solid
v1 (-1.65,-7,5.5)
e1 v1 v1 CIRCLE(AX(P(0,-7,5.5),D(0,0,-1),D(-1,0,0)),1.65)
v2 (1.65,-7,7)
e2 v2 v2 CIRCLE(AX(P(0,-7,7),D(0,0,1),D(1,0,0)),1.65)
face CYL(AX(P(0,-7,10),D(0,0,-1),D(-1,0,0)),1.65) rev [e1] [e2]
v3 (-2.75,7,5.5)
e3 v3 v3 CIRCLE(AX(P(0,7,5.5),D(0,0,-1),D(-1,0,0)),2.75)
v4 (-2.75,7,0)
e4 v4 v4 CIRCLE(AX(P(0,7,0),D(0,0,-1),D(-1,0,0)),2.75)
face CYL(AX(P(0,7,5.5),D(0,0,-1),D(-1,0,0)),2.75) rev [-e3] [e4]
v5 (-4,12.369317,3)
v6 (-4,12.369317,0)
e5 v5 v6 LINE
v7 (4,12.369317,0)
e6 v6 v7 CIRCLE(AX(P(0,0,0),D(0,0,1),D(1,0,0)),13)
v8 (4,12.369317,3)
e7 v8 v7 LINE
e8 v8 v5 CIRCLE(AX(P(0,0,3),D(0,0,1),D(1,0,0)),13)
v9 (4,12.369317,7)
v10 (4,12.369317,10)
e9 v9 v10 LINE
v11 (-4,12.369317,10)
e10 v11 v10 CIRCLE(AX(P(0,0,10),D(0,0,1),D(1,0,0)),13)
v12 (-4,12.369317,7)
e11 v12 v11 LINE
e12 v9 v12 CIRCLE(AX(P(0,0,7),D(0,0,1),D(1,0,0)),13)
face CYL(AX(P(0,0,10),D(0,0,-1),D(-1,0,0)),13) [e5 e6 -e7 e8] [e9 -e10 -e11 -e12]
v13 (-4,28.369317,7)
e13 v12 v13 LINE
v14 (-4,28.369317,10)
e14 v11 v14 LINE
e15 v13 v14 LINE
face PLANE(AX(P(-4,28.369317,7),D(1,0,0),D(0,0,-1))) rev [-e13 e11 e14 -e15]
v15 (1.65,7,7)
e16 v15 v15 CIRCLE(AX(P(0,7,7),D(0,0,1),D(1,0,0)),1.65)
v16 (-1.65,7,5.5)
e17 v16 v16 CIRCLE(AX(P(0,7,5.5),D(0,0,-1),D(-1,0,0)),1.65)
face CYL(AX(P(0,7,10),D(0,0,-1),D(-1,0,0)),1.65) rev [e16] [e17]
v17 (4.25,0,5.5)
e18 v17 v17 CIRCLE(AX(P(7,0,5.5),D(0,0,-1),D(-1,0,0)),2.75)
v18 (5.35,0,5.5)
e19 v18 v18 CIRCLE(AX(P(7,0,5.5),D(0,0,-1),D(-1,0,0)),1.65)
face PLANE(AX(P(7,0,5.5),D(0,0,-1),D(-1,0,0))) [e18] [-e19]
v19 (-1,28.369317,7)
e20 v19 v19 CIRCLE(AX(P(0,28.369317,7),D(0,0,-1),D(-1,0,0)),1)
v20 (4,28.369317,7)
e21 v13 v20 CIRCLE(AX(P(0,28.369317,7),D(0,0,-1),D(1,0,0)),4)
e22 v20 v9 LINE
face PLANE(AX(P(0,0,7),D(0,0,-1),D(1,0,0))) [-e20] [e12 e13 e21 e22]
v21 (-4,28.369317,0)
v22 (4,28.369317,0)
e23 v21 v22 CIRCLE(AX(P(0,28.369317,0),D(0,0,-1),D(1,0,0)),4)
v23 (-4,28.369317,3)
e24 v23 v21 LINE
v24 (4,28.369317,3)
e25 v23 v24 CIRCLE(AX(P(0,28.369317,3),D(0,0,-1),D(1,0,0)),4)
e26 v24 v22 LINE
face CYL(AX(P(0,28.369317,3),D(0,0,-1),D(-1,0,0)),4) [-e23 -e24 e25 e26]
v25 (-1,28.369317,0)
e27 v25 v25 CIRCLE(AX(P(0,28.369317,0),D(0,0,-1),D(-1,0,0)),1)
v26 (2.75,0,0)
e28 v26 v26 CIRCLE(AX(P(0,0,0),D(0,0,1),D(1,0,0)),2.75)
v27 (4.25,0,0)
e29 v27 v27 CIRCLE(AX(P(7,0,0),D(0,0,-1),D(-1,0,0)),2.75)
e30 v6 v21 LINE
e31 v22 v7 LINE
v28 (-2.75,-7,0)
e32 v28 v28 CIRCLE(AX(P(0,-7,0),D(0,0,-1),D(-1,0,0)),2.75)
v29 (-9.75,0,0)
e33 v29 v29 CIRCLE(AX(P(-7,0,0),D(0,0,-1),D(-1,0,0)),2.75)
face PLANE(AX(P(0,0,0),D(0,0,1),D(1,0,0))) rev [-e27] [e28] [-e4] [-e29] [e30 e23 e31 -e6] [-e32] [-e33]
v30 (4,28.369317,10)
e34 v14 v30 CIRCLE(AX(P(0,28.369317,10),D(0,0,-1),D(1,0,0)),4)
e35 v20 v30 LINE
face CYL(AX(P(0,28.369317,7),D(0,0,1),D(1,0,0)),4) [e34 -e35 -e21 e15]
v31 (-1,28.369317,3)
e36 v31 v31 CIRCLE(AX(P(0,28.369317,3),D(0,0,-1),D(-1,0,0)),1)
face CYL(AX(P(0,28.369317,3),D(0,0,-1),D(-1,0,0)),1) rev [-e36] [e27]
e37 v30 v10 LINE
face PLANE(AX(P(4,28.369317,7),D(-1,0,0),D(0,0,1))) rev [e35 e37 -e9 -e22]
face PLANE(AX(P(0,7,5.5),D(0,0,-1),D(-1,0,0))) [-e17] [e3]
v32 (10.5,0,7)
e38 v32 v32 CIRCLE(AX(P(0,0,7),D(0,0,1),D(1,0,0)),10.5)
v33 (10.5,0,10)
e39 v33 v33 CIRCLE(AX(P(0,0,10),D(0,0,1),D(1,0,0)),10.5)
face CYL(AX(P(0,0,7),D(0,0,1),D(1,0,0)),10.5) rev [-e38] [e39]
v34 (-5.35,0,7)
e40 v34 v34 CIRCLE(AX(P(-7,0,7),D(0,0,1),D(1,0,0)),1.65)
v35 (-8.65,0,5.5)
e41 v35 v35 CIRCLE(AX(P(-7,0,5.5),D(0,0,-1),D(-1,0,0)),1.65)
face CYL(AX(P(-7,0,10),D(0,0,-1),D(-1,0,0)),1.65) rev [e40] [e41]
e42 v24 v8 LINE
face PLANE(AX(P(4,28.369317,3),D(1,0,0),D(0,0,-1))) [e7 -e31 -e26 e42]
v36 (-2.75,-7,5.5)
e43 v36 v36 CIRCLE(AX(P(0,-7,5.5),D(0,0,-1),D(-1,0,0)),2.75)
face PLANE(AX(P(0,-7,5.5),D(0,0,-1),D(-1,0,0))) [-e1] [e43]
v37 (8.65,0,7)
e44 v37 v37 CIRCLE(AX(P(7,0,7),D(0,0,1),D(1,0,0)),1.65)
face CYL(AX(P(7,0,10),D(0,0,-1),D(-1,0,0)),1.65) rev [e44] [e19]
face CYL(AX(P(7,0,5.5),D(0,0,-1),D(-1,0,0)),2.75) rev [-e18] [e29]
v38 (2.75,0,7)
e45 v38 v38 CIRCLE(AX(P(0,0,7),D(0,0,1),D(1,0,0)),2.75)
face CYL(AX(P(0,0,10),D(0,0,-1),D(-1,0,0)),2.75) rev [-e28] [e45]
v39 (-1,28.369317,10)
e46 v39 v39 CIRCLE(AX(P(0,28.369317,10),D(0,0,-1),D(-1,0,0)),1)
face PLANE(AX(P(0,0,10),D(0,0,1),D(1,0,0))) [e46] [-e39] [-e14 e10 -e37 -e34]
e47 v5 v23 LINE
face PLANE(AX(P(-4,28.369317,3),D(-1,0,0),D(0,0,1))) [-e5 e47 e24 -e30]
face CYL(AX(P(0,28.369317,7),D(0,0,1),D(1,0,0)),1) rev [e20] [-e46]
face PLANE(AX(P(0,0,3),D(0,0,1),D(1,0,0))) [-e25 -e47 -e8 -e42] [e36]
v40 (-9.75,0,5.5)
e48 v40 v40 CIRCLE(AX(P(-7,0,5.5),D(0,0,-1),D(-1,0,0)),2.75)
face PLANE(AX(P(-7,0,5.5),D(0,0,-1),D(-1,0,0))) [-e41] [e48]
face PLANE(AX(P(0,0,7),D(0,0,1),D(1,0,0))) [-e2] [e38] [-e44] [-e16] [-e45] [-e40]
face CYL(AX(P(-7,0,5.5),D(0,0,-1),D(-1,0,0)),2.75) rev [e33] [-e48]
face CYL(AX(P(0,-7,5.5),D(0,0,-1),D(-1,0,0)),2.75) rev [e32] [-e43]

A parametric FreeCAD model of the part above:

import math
import FreeCAD as App
import Part
import Sketcher

V = App.Vector
Q = App.Units.Quantity

doc = App.newDocument("Part")
body = doc.addObject("PartDesign::Body", "Body")

sketch1 = doc.addObject("Sketcher::SketchObject", "Sketch")
body.addObject(sketch1)
sketch1.AttachmentSupport = (doc.XY_Plane, [""])
sketch1.MapMode = "FlatFace"
sketch1.addGeometry(Part.Circle(V(0, 0, 0), V(0, 0, 1), 13), False)
sketch1.addGeometry(Part.Circle(V(0, -7, 0), V(0, 0, 1), 1.65), False)
sketch1.addGeometry(Part.Circle(V(-7, 0, 0), V(0, 0, 1), 1.65), False)
sketch1.addGeometry(Part.Circle(V(0, 0, 0), V(0, 0, 1), 2.75), False)
sketch1.addGeometry(Part.Circle(V(7, 0, 0), V(0, 0, 1), 1.65), False)
sketch1.addGeometry(Part.Circle(V(0, 7, 0), V(0, 0, 1), 1.65), False)
sketch1.addConstraint(Sketcher.Constraint("Coincident", 0, 3, -1, 1))
sketch1.addConstraint(Sketcher.Constraint("Coincident", 3, 3, -1, 1))
sketch1.addConstraint(Sketcher.Constraint("Equal", 1, 2))
sketch1.addConstraint(Sketcher.Constraint("Equal", 2, 4))
sketch1.addConstraint(Sketcher.Constraint("Equal", 4, 5))
sketch1.addConstraint(Sketcher.Constraint("Symmetric", 2, 3, 4, 3, -1, 1))
sketch1.addConstraint(Sketcher.Constraint("Symmetric", 1, 3, 5, 3, -1, 1))
sketch1.addConstraint(Sketcher.Constraint("PointOnObject", 1, 3, -2))
sketch1.addConstraint(Sketcher.Constraint("PointOnObject", 2, 3, -1))
sketch1.addConstraint(Sketcher.Constraint("Diameter", 0, Q("26 mm")))
sketch1.addConstraint(Sketcher.Constraint("Diameter", 1, Q("3.3 mm")))
sketch1.addConstraint(Sketcher.Constraint("Diameter", 3, Q("5.5 mm")))
sketch1.addConstraint(Sketcher.Constraint("DistanceY", 1, 3, -1, 1, Q("7 mm")))
sketch1.addConstraint(Sketcher.Constraint("DistanceX", 2, 3, -1, 1, Q("7 mm")))
pad1 = doc.addObject("PartDesign::Pad", "Pad")
body.addObject(pad1)
pad1.Profile = sketch1
pad1.Length = 10

sketch2 = doc.addObject("Sketcher::SketchObject", "Sketch001")
body.addObject(sketch2)
sketch2.AttachmentSupport = (doc.XY_Plane, [""])
sketch2.MapMode = "FlatFace"
sketch2.AttachmentOffset = App.Placement(V(0, 0, 10), App.Rotation())
sketch2.addGeometry(Part.Circle(V(0, 0, 0), V(0, 0, 1), 10.5), False)
sketch2.addConstraint(Sketcher.Constraint("Coincident", 0, 3, -1, 1))
sketch2.addConstraint(Sketcher.Constraint("Diameter", 0, Q("21 mm")))
pocket1 = doc.addObject("PartDesign::Pocket", "Pocket")
body.addObject(pocket1)
pocket1.Profile = sketch2
pocket1.Length = 3

sketch3 = doc.addObject("Sketcher::SketchObject", "Sketch002")
body.addObject(sketch3)
sketch3.AttachmentSupport = (doc.XY_Plane, [""])
sketch3.MapMode = "FlatFace"
sketch3.addGeometry(Part.Circle(V(7, 0, 0), V(0, 0, 1), 2.75), False)
sketch3.addGeometry(Part.Circle(V(0, 7, 0), V(0, 0, 1), 2.75), False)
sketch3.addGeometry(Part.Circle(V(-7, 0, 0), V(0, 0, 1), 2.75), False)
sketch3.addGeometry(Part.Circle(V(0, -7, 0), V(0, 0, 1), 2.75), False)
sketch3.addConstraint(Sketcher.Constraint("Equal", 0, 1))
sketch3.addConstraint(Sketcher.Constraint("Equal", 1, 2))
sketch3.addConstraint(Sketcher.Constraint("Equal", 2, 3))
sketch3.addConstraint(Sketcher.Constraint("Symmetric", 0, 3, 2, 3, -1, 1))
sketch3.addConstraint(Sketcher.Constraint("Symmetric", 1, 3, 3, 3, -1, 1))
sketch3.addConstraint(Sketcher.Constraint("PointOnObject", 0, 3, -1))
sketch3.addConstraint(Sketcher.Constraint("PointOnObject", 1, 3, -2))
sketch3.addConstraint(Sketcher.Constraint("Diameter", 0, Q("5.5 mm")))
sketch3.addConstraint(Sketcher.Constraint("DistanceX", -1, 1, 0, 3, Q("7 mm")))
sketch3.addConstraint(Sketcher.Constraint("DistanceY", -1, 1, 1, 3, Q("7 mm")))
pocket2 = doc.addObject("PartDesign::Pocket", "Pocket001")
body.addObject(pocket2)
pocket2.Profile = sketch3
pocket2.Length = 5.5
pocket2.Reversed = True

sketch4 = doc.addObject("Sketcher::SketchObject", "Sketch003")
body.addObject(sketch4)
sketch4.AttachmentSupport = (doc.XY_Plane, [""])
sketch4.MapMode = "FlatFace"
sketch4.addGeometry(Part.LineSegment(V(4, 28.369317, 0), V(4, 12.369317, 0)), False)
sketch4.addGeometry(Part.ArcOfCircle(Part.Circle(V(0, 0, 0), V(0, 0, 1), 13), math.radians(72.079787), math.radians(107.920213)), False)
sketch4.addGeometry(Part.LineSegment(V(-4, 12.369317, 0), V(-4, 28.369317, 0)), False)
sketch4.addGeometry(Part.ArcOfCircle(Part.Circle(V(0, 28.369317, 0), V(0, 0, 1), 4), math.radians(0), math.radians(180)), False)
sketch4.addGeometry(Part.Circle(V(0, 28.369317, 0), V(0, 0, 1), 1), False)
sketch4.addConstraint(Sketcher.Constraint("Coincident", 0, 2, 1, 1))
sketch4.addConstraint(Sketcher.Constraint("Coincident", 1, 2, 2, 1))
sketch4.addConstraint(Sketcher.Constraint("Tangent", 2, 2, 3, 2))
sketch4.addConstraint(Sketcher.Constraint("Tangent", 3, 1, 0, 1))
sketch4.addConstraint(Sketcher.Constraint("Vertical", 0))
sketch4.addConstraint(Sketcher.Constraint("Vertical", 2))
sketch4.addConstraint(Sketcher.Constraint("Coincident", 1, 3, -1, 1))
sketch4.addConstraint(Sketcher.Constraint("Coincident", 4, 3, 3, 3))
sketch4.addConstraint(Sketcher.Constraint("PointOnObject", 3, 3, -2))
sketch4.addConstraint(Sketcher.Constraint("Diameter", 4, Q("2 mm")))
sketch4.addConstraint(Sketcher.Constraint("Radius", 1, Q("13 mm")))
sketch4.addConstraint(Sketcher.Constraint("Radius", 3, Q("4 mm")))
sketch4.addConstraint(Sketcher.Constraint("DistanceY", 0, 2, 0, 1, Q("16 mm")))
pad2 = doc.addObject("PartDesign::Pad", "Pad001")
body.addObject(pad2)
pad2.Profile = sketch4
pad2.Length = 3
doc.recompute()

datumplane = doc.addObject("PartDesign::Plane", "DatumPlane")
body.addObject(datumplane)
datumplane.AttachmentSupport = (doc.XY_Plane, [""])
datumplane.MapMode = "FlatFace"
datumplane.AttachmentOffset = App.Placement(V(0, 0, 5), App.Rotation())
mirrored = doc.addObject("PartDesign::Mirrored", "Mirrored")
body.addObject(mirrored)
mirrored.Originals = [pad2]
mirrored.MirrorPlane = (datumplane, [""])
body.Tip = mirrored

doc.recompute()
